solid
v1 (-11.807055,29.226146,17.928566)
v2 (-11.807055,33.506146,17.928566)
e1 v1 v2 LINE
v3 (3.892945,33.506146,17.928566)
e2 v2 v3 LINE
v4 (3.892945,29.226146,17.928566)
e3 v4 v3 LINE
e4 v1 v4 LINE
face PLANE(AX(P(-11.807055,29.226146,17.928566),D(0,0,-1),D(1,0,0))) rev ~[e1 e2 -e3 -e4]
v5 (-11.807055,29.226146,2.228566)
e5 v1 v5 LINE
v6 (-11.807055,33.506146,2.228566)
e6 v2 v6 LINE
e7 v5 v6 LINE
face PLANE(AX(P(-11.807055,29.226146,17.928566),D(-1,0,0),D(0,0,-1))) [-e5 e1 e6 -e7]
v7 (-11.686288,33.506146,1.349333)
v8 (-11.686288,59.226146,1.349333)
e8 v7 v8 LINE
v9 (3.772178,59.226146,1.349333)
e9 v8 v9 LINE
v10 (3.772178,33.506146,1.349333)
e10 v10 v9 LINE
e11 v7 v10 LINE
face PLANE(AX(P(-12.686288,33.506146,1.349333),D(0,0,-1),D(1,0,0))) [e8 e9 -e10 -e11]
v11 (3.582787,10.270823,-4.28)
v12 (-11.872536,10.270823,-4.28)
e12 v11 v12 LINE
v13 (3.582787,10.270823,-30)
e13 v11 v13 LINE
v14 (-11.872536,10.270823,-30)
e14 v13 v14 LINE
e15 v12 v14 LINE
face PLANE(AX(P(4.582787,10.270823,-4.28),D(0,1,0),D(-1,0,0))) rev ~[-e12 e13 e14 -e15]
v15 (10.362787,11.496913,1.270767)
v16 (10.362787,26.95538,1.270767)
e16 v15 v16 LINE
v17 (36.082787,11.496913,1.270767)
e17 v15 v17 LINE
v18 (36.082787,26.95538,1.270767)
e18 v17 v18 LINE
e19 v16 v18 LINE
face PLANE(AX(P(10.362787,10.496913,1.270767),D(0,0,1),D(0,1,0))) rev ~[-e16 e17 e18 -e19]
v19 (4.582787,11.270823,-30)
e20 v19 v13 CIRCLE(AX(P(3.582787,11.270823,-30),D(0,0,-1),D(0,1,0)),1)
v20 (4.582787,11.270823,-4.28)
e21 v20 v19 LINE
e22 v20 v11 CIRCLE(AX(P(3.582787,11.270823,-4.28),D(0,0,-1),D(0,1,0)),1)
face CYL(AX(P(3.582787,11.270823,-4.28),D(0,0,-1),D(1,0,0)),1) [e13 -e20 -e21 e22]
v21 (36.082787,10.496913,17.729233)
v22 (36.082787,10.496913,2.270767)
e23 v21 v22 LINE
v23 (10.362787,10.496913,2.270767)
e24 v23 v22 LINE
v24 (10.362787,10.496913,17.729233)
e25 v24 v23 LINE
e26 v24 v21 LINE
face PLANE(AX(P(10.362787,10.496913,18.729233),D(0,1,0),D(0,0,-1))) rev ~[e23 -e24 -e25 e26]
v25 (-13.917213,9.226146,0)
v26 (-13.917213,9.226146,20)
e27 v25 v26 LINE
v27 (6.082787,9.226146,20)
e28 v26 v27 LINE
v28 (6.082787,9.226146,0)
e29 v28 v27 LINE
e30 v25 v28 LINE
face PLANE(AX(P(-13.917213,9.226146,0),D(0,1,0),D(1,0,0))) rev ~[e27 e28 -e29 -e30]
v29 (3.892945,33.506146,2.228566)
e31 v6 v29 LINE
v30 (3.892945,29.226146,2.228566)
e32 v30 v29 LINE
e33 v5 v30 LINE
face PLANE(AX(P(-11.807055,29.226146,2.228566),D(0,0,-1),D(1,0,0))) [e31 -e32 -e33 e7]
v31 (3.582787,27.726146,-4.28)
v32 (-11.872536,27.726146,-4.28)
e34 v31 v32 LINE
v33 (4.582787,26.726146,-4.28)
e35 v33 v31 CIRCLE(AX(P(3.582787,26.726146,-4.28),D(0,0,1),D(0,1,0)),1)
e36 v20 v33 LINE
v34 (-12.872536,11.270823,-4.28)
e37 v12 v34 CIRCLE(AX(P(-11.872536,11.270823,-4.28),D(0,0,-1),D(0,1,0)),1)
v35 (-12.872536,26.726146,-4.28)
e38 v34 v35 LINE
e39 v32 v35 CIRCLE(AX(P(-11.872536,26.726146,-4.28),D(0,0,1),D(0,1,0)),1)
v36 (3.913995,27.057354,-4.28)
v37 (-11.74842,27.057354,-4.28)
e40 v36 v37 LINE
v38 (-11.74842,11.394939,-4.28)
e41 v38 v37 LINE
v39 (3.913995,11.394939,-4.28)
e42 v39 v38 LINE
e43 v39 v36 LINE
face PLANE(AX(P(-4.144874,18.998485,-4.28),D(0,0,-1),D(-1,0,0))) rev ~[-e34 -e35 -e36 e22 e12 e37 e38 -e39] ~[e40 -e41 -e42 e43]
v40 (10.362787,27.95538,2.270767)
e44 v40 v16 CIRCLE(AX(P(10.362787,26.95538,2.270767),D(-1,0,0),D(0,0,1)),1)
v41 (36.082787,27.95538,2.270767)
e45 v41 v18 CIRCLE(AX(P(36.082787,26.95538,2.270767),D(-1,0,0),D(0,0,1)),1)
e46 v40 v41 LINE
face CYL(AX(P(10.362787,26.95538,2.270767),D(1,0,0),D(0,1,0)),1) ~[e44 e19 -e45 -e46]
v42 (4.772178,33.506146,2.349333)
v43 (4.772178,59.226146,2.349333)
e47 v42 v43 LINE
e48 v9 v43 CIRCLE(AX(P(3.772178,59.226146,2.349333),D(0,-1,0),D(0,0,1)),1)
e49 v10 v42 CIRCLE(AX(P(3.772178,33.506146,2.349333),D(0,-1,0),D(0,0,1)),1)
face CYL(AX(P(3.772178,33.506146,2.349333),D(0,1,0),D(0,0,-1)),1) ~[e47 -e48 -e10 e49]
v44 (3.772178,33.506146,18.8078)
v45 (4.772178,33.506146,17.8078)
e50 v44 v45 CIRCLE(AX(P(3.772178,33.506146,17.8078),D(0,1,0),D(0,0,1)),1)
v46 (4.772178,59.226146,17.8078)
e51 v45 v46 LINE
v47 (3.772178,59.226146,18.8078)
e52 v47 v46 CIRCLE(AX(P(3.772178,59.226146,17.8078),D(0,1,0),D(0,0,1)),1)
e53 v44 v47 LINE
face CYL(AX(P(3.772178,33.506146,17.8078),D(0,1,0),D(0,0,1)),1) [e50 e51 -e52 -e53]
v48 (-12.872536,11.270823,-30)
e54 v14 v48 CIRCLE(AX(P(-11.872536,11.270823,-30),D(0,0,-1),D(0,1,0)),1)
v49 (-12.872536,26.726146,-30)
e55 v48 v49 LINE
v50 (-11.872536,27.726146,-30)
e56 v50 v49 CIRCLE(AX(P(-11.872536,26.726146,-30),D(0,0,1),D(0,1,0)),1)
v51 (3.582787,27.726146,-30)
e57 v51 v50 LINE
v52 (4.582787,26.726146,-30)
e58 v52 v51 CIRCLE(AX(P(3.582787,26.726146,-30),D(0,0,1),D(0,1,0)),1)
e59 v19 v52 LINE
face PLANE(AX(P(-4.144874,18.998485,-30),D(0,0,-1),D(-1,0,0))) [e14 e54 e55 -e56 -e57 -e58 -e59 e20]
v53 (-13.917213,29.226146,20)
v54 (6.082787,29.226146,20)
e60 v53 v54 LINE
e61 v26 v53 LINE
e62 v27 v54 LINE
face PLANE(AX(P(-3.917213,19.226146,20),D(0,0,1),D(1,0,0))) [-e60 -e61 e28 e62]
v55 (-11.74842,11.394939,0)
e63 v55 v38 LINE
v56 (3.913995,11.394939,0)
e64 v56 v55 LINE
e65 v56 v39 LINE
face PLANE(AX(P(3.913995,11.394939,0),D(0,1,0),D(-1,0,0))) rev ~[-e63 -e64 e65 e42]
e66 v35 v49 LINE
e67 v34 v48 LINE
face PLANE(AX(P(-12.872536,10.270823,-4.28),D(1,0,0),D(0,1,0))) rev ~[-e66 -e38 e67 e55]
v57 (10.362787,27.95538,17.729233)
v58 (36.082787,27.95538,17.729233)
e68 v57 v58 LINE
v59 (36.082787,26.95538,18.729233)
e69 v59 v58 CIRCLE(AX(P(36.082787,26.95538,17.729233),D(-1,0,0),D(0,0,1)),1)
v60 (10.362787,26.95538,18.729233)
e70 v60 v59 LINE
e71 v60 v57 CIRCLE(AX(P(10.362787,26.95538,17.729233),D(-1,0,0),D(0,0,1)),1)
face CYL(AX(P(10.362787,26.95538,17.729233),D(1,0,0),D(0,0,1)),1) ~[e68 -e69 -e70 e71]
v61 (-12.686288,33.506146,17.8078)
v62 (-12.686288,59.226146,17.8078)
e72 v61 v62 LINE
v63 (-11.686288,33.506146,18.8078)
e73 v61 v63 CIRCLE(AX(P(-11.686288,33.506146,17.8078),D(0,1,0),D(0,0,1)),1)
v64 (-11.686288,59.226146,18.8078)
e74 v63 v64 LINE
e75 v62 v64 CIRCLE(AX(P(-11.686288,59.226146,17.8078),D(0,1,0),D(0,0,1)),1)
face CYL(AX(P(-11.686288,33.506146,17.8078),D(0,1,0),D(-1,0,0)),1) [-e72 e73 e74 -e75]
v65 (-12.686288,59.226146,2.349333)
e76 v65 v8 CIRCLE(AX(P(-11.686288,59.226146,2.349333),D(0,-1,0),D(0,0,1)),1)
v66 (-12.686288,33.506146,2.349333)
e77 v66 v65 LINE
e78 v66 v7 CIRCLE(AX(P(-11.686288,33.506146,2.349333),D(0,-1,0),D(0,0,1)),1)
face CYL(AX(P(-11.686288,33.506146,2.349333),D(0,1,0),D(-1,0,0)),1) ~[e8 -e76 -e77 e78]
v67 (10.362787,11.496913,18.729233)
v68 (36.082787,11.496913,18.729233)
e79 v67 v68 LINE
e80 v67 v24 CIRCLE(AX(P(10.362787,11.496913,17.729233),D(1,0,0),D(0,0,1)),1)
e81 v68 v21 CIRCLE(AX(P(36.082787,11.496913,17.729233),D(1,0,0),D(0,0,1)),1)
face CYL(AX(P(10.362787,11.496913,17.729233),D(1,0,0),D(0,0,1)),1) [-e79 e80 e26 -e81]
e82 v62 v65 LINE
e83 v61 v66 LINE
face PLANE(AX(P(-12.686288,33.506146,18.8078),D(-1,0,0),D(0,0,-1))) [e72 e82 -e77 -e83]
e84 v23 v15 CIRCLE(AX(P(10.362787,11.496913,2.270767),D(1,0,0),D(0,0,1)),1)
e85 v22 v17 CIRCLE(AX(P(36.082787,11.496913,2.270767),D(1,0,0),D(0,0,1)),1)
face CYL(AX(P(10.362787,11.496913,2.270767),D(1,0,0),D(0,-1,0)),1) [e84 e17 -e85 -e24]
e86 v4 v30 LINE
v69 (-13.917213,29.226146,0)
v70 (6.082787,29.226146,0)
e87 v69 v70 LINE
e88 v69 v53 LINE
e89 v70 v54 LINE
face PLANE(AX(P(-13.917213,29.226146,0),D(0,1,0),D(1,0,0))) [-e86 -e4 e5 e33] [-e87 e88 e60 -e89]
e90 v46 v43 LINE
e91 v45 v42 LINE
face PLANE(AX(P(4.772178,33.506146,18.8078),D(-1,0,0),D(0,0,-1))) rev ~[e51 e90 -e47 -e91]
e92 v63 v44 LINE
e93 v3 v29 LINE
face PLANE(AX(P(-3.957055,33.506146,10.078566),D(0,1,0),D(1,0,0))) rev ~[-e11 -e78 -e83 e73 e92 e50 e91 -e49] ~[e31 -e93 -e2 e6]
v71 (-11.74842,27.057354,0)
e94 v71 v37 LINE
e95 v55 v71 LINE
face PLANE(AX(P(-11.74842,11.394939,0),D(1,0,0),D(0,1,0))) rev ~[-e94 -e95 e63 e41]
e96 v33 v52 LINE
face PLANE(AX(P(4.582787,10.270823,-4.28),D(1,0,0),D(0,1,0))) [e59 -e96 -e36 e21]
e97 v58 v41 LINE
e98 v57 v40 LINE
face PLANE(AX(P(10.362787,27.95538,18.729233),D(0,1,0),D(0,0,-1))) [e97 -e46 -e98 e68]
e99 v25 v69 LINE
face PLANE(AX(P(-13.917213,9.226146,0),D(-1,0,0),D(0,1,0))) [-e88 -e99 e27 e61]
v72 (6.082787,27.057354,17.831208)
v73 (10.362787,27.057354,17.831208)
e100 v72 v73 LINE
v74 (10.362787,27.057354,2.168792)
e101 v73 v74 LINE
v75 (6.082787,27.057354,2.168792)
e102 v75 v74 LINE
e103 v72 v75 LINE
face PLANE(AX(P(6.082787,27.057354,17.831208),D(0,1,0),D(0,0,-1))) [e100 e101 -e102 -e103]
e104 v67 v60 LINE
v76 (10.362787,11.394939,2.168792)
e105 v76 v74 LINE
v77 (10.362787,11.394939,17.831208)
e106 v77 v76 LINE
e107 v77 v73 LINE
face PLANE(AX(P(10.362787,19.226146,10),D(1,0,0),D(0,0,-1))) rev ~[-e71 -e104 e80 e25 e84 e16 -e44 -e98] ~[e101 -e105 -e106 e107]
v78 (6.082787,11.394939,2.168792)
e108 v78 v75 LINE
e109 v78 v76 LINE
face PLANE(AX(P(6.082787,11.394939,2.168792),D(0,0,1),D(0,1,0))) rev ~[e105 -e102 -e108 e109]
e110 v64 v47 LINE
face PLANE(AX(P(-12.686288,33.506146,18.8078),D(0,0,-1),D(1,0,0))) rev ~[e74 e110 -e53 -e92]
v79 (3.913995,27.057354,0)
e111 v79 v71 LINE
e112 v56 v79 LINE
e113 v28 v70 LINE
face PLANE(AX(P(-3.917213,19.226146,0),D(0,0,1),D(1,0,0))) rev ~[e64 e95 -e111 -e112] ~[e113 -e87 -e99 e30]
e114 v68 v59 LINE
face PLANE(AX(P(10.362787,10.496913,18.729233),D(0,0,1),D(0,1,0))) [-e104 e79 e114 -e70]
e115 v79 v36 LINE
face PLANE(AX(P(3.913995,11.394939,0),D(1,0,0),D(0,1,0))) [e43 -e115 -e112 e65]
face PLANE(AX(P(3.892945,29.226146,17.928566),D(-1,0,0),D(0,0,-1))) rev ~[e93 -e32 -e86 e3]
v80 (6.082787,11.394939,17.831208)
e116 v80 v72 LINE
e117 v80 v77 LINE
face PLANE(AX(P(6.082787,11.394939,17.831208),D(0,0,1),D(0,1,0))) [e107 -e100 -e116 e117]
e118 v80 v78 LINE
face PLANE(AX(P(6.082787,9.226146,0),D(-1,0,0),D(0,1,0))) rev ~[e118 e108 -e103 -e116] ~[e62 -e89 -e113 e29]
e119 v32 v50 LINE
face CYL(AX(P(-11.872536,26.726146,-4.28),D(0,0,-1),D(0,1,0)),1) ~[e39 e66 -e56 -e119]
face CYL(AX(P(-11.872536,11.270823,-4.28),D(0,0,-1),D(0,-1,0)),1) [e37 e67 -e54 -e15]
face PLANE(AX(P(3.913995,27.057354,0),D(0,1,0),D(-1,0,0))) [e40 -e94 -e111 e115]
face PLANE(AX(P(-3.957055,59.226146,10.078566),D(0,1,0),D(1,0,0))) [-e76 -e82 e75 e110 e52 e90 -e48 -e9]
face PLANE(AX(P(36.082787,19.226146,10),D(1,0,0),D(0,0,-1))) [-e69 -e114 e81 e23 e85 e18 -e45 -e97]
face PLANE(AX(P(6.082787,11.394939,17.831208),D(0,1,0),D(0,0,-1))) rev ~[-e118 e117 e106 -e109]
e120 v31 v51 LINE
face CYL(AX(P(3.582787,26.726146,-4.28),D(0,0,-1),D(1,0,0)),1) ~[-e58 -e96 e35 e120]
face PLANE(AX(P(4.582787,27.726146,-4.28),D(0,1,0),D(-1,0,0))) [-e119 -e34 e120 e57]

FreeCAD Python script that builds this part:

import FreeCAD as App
import Part
import Sketcher

V = App.Vector


def edges_at(feature, points):
    """Names of the edges that pass closest to the given points."""
    edges = feature.Shape.Edges
    near = lambda p: min(range(len(edges)), key=lambda i: edges[i].distToShape(Part.Vertex(*p))[0])
    return sorted({f"Edge{near(p) + 1}" for p in points})


def add_polygon(sketch, points):
    """Adds a closed chain of lines whose ends are joined by coincident constraints."""
    first, n = sketch.GeometryCount, len(points)
    for a, b in zip(points, points[1:] + points[:1]):
        sketch.addGeometry(Part.LineSegment(App.Vector(*a, 0), App.Vector(*b, 0)), False)
    for i in range(n):
        sketch.addConstraint(Sketcher.Constraint("Coincident", first + i, 2, first + (i + 1) % n, 1))

doc = App.newDocument("Part")
params = doc.addObject("Spreadsheet::Sheet", "Params")
for row, (alias, value) in enumerate([
    ("sketch1_width", "20 mm"),
    ("pad1_length", "20 mm"),
    ("sketch2_width", "15.7 mm"),
    ("pad2_length", "4.28 mm"),
    ("pad3_length", "4.28 mm"),
    ("pad4_length", "4.28 mm"),
    ("pad5_length", "25.72 mm"),
    ("pad6_length", "25.72 mm"),
    ("pad7_length", "25.72 mm"),
    ("fillet_radius", "1 mm"),
], start=1):
    params.set(f"A{row}", alias)
    params.set(f"B{row}", "=" + value)
    params.setAlias(f"B{row}", alias)

body = doc.addObject("PartDesign::Body", "Body")

# Sketch on XY plane
sketch1 = doc.addObject("Sketcher::SketchObject", "Sketch")
body.addObject(sketch1)
sketch1.AttachmentSupport = (doc.XY_Plane, [""])
sketch1.MapMode = "FlatFace"
add_polygon(sketch1, [(-14, 29), (-14, 9), (6, 9), (6, 29)])  # lines 0-3
sketch1.addConstraint([
    Sketcher.Constraint("Vertical", 0),
    Sketcher.Constraint("Horizontal", 1),
    Sketcher.Constraint("Vertical", 2),
    Sketcher.Constraint("Horizontal", 3),
    Sketcher.Constraint("Equal", 3, 0),
    Sketcher.Constraint("DistanceX", 1, 1, 1, 2, 20.0),
    Sketcher.Constraint("DistanceX", 0, 2, -1, 1, 13.917213),
    Sketcher.Constraint("DistanceY", -1, 1, 0, 2, 9.226146),
])
sketch1.setExpression("Constraints[9]", "Params.sketch1_width")
pad1 = doc.addObject("PartDesign::Pad", "Pad")
body.addObject(pad1)
pad1.Profile = sketch1
pad1.setExpression("Length", "Params.pad1_length")

# Sketch on XZ plane
sketch2 = doc.addObject("Sketcher::SketchObject", "Sketch001")
body.addObject(sketch2)
sketch2.AttachmentSupport = (doc.XZ_Plane, [""])
sketch2.MapMode = "FlatFace"
sketch2.AttachmentOffset = App.Placement(V(0, 0, -29.226146), App.Rotation())
add_polygon(sketch2, [(-12, 2), (-12, 18), (4, 18), (4, 2)])  # lines 0-3
sketch2.addConstraint([
    Sketcher.Constraint("Vertical", 0),
    Sketcher.Constraint("Horizontal", 1),
    Sketcher.Constraint("Vertical", 2),
    Sketcher.Constraint("Horizontal", 3),
    Sketcher.Constraint("Equal", 3, 0),
    Sketcher.Constraint("DistanceX", 1, 1, 1, 2, 15.7),
    Sketcher.Constraint("DistanceX", 0, 2, -1, 1, 11.807055),
    Sketcher.Constraint("DistanceY", -1, 1, 0, 2, 17.928566),
])
sketch2.setExpression("Constraints[9]", "Params.sketch2_width")
pad2 = doc.addObject("PartDesign::Pad", "Pad001")
body.addObject(pad2)
pad2.Profile = sketch2
pad2.setExpression("Length", "Params.pad2_length")
pad2.Reversed = True

# Sketch on YZ plane
sketch3 = doc.addObject("Sketcher::SketchObject", "Sketch002")
body.addObject(sketch3)
sketch3.AttachmentSupport = (doc.YZ_Plane, [""])
sketch3.MapMode = "FlatFace"
sketch3.AttachmentOffset = App.Placement(V(0, 0, 6.082787), App.Rotation())
add_polygon(sketch3, [(27, 18), (11, 18), (11, 2), (27, 2)])  # lines 0-3
sketch3.addConstraint([
    Sketcher.Constraint("Horizontal", 0),
    Sketcher.Constraint("Vertical", 1),
    Sketcher.Constraint("Horizontal", 2),
    Sketcher.Constraint("Vertical", 3),
    Sketcher.Constraint("Equal", 2, 1),
    Sketcher.Constraint("DistanceX", 0, 2, 0, 1, 15.662415),
    Sketcher.Constraint("DistanceX", -1, 1, 0, 2, 11.394939),
    Sketcher.Constraint("DistanceY", -1, 1, 0, 2, 17.831208),
])
pad3 = doc.addObject("PartDesign::Pad", "Pad002")
body.addObject(pad3)
pad3.Profile = sketch3
pad3.setExpression("Length", "Params.pad3_length")

# Sketch on XY plane
sketch4 = doc.addObject("Sketcher::SketchObject", "Sketch003")
body.addObject(sketch4)
sketch4.AttachmentSupport = (doc.XY_Plane, [""])
sketch4.MapMode = "FlatFace"
add_polygon(sketch4, [(4, 27), (4, 11), (-12, 11), (-12, 27)])  # lines 0-3
sketch4.addConstraint([
    Sketcher.Constraint("Vertical", 0),
    Sketcher.Constraint("Horizontal", 1),
    Sketcher.Constraint("Vertical", 2),
    Sketcher.Constraint("Horizontal", 3),
    Sketcher.Constraint("Equal", 3, 0),
    Sketcher.Constraint("DistanceX", 1, 2, 1, 1, 15.662415),
    Sketcher.Constraint("DistanceY", -1, 1, 0, 2, 11.394939),
    Sketcher.Constraint("DistanceX", 1, 2, -1, 1, 11.74842),
])
pad4 = doc.addObject("PartDesign::Pad", "Pad003")
body.addObject(pad4)
pad4.Profile = sketch4
pad4.setExpression("Length", "Params.pad4_length")
pad4.Reversed = True

# Sketch on XY plane
sketch5 = doc.addObject("Sketcher::SketchObject", "Sketch004")
body.addObject(sketch5)
sketch5.AttachmentSupport = (doc.XY_Plane, [""])
sketch5.MapMode = "FlatFace"
sketch5.AttachmentOffset = App.Placement(V(0, 0, -4.28), App.Rotation())
add_polygon(sketch5, [(5, 28), (5, 10), (-13, 10), (-13, 28)])  # lines 0-3
sketch5.addConstraint([
    Sketcher.Constraint("Vertical", 0),
    Sketcher.Constraint("Horizontal", 1),
    Sketcher.Constraint("Vertical", 2),
    Sketcher.Constraint("Horizontal", 3),
    Sketcher.Constraint("Equal", 3, 0),
    Sketcher.Constraint("DistanceX", 1, 2, 1, 1, 17.455323),
    Sketcher.Constraint("DistanceX", -1, 1, 0, 2, 4.582787),
    Sketcher.Constraint("DistanceY", -1, 1, 0, 2, 10.270823),
])
pad5 = doc.addObject("PartDesign::Pad", "Pad004")
body.addObject(pad5)
pad5.Profile = sketch5
pad5.setExpression("Length", "Params.pad5_length")
pad5.Reversed = True

# Sketch on YZ plane
sketch6 = doc.addObject("Sketcher::SketchObject", "Sketch005")
body.addObject(sketch6)
sketch6.AttachmentSupport = (doc.YZ_Plane, [""])
sketch6.MapMode = "FlatFace"
sketch6.AttachmentOffset = App.Placement(V(0, 0, 10.362787), App.Rotation())
add_polygon(sketch6, [(28, 19), (10, 19), (10, 1), (28, 1)])  # lines 0-3
sketch6.addConstraint([
    Sketcher.Constraint("Horizontal", 0),
    Sketcher.Constraint("Vertical", 1),
    Sketcher.Constraint("Horizontal", 2),
    Sketcher.Constraint("Vertical", 3),
    Sketcher.Constraint("Equal", 2, 1),
    Sketcher.Constraint("DistanceX", 0, 2, 0, 1, 17.458466),
    Sketcher.Constraint("DistanceX", -1, 1, 2, 2, 27.95538),
    Sketcher.Constraint("DistanceY", -1, 1, 0, 2, 18.729233),
])
pad6 = doc.addObject("PartDesign::Pad", "Pad005")
body.addObject(pad6)
pad6.Profile = sketch6
pad6.setExpression("Length", "Params.pad6_length")

# Sketch on XZ plane
sketch7 = doc.addObject("Sketcher::SketchObject", "Sketch006")
body.addObject(sketch7)
sketch7.AttachmentSupport = (doc.XZ_Plane, [""])
sketch7.MapMode = "FlatFace"
sketch7.AttachmentOffset = App.Placement(V(0, 0, -33.506146), App.Rotation())
add_polygon(sketch7, [(-13, 1), (-13, 19), (5, 19), (5, 1)])  # lines 0-3
sketch7.addConstraint([
    Sketcher.Constraint("Vertical", 0),
    Sketcher.Constraint("Horizontal", 1),
    Sketcher.Constraint("Vertical", 2),
    Sketcher.Constraint("Horizontal", 3),
    Sketcher.Constraint("Equal", 3, 0),
    Sketcher.Constraint("DistanceY", -1, 1, 0, 2, 18.8078),
    Sketcher.Constraint("DistanceX", 1, 1, 1, 2, 17.458466),
    Sketcher.Constraint("DistanceX", 0, 2, -1, 1, 12.686288),
])
pad7 = doc.addObject("PartDesign::Pad", "Pad006")
body.addObject(pad7)
pad7.Profile = sketch7
pad7.setExpression("Length", "Params.pad7_length")
pad7.Reversed = True
doc.recompute()

fillet = doc.addObject("PartDesign::Fillet", "Fillet")
body.addObject(fillet)
fillet.Base = (pad7, edges_at(pad7, [
    (4.583, 27.726, -17.14),
    (4.583, 10.271, -17.14),
    (-12.873, 10.271, -17.14),
    (-12.873, 27.726, -17.14),
    (23.223, 10.497, 18.729),
    (23.223, 10.497, 1.271),
    (23.223, 27.955, 1.271),
    (23.223, 27.955, 18.729),
    (4.772, 46.366, 18.808),
    (4.772, 46.366, 1.349),
    (-12.686, 46.366, 1.349),
    (-12.686, 46.366, 18.808),
]))
fillet.setExpression("Radius", "Params.fillet_radius")

doc.recompute()
